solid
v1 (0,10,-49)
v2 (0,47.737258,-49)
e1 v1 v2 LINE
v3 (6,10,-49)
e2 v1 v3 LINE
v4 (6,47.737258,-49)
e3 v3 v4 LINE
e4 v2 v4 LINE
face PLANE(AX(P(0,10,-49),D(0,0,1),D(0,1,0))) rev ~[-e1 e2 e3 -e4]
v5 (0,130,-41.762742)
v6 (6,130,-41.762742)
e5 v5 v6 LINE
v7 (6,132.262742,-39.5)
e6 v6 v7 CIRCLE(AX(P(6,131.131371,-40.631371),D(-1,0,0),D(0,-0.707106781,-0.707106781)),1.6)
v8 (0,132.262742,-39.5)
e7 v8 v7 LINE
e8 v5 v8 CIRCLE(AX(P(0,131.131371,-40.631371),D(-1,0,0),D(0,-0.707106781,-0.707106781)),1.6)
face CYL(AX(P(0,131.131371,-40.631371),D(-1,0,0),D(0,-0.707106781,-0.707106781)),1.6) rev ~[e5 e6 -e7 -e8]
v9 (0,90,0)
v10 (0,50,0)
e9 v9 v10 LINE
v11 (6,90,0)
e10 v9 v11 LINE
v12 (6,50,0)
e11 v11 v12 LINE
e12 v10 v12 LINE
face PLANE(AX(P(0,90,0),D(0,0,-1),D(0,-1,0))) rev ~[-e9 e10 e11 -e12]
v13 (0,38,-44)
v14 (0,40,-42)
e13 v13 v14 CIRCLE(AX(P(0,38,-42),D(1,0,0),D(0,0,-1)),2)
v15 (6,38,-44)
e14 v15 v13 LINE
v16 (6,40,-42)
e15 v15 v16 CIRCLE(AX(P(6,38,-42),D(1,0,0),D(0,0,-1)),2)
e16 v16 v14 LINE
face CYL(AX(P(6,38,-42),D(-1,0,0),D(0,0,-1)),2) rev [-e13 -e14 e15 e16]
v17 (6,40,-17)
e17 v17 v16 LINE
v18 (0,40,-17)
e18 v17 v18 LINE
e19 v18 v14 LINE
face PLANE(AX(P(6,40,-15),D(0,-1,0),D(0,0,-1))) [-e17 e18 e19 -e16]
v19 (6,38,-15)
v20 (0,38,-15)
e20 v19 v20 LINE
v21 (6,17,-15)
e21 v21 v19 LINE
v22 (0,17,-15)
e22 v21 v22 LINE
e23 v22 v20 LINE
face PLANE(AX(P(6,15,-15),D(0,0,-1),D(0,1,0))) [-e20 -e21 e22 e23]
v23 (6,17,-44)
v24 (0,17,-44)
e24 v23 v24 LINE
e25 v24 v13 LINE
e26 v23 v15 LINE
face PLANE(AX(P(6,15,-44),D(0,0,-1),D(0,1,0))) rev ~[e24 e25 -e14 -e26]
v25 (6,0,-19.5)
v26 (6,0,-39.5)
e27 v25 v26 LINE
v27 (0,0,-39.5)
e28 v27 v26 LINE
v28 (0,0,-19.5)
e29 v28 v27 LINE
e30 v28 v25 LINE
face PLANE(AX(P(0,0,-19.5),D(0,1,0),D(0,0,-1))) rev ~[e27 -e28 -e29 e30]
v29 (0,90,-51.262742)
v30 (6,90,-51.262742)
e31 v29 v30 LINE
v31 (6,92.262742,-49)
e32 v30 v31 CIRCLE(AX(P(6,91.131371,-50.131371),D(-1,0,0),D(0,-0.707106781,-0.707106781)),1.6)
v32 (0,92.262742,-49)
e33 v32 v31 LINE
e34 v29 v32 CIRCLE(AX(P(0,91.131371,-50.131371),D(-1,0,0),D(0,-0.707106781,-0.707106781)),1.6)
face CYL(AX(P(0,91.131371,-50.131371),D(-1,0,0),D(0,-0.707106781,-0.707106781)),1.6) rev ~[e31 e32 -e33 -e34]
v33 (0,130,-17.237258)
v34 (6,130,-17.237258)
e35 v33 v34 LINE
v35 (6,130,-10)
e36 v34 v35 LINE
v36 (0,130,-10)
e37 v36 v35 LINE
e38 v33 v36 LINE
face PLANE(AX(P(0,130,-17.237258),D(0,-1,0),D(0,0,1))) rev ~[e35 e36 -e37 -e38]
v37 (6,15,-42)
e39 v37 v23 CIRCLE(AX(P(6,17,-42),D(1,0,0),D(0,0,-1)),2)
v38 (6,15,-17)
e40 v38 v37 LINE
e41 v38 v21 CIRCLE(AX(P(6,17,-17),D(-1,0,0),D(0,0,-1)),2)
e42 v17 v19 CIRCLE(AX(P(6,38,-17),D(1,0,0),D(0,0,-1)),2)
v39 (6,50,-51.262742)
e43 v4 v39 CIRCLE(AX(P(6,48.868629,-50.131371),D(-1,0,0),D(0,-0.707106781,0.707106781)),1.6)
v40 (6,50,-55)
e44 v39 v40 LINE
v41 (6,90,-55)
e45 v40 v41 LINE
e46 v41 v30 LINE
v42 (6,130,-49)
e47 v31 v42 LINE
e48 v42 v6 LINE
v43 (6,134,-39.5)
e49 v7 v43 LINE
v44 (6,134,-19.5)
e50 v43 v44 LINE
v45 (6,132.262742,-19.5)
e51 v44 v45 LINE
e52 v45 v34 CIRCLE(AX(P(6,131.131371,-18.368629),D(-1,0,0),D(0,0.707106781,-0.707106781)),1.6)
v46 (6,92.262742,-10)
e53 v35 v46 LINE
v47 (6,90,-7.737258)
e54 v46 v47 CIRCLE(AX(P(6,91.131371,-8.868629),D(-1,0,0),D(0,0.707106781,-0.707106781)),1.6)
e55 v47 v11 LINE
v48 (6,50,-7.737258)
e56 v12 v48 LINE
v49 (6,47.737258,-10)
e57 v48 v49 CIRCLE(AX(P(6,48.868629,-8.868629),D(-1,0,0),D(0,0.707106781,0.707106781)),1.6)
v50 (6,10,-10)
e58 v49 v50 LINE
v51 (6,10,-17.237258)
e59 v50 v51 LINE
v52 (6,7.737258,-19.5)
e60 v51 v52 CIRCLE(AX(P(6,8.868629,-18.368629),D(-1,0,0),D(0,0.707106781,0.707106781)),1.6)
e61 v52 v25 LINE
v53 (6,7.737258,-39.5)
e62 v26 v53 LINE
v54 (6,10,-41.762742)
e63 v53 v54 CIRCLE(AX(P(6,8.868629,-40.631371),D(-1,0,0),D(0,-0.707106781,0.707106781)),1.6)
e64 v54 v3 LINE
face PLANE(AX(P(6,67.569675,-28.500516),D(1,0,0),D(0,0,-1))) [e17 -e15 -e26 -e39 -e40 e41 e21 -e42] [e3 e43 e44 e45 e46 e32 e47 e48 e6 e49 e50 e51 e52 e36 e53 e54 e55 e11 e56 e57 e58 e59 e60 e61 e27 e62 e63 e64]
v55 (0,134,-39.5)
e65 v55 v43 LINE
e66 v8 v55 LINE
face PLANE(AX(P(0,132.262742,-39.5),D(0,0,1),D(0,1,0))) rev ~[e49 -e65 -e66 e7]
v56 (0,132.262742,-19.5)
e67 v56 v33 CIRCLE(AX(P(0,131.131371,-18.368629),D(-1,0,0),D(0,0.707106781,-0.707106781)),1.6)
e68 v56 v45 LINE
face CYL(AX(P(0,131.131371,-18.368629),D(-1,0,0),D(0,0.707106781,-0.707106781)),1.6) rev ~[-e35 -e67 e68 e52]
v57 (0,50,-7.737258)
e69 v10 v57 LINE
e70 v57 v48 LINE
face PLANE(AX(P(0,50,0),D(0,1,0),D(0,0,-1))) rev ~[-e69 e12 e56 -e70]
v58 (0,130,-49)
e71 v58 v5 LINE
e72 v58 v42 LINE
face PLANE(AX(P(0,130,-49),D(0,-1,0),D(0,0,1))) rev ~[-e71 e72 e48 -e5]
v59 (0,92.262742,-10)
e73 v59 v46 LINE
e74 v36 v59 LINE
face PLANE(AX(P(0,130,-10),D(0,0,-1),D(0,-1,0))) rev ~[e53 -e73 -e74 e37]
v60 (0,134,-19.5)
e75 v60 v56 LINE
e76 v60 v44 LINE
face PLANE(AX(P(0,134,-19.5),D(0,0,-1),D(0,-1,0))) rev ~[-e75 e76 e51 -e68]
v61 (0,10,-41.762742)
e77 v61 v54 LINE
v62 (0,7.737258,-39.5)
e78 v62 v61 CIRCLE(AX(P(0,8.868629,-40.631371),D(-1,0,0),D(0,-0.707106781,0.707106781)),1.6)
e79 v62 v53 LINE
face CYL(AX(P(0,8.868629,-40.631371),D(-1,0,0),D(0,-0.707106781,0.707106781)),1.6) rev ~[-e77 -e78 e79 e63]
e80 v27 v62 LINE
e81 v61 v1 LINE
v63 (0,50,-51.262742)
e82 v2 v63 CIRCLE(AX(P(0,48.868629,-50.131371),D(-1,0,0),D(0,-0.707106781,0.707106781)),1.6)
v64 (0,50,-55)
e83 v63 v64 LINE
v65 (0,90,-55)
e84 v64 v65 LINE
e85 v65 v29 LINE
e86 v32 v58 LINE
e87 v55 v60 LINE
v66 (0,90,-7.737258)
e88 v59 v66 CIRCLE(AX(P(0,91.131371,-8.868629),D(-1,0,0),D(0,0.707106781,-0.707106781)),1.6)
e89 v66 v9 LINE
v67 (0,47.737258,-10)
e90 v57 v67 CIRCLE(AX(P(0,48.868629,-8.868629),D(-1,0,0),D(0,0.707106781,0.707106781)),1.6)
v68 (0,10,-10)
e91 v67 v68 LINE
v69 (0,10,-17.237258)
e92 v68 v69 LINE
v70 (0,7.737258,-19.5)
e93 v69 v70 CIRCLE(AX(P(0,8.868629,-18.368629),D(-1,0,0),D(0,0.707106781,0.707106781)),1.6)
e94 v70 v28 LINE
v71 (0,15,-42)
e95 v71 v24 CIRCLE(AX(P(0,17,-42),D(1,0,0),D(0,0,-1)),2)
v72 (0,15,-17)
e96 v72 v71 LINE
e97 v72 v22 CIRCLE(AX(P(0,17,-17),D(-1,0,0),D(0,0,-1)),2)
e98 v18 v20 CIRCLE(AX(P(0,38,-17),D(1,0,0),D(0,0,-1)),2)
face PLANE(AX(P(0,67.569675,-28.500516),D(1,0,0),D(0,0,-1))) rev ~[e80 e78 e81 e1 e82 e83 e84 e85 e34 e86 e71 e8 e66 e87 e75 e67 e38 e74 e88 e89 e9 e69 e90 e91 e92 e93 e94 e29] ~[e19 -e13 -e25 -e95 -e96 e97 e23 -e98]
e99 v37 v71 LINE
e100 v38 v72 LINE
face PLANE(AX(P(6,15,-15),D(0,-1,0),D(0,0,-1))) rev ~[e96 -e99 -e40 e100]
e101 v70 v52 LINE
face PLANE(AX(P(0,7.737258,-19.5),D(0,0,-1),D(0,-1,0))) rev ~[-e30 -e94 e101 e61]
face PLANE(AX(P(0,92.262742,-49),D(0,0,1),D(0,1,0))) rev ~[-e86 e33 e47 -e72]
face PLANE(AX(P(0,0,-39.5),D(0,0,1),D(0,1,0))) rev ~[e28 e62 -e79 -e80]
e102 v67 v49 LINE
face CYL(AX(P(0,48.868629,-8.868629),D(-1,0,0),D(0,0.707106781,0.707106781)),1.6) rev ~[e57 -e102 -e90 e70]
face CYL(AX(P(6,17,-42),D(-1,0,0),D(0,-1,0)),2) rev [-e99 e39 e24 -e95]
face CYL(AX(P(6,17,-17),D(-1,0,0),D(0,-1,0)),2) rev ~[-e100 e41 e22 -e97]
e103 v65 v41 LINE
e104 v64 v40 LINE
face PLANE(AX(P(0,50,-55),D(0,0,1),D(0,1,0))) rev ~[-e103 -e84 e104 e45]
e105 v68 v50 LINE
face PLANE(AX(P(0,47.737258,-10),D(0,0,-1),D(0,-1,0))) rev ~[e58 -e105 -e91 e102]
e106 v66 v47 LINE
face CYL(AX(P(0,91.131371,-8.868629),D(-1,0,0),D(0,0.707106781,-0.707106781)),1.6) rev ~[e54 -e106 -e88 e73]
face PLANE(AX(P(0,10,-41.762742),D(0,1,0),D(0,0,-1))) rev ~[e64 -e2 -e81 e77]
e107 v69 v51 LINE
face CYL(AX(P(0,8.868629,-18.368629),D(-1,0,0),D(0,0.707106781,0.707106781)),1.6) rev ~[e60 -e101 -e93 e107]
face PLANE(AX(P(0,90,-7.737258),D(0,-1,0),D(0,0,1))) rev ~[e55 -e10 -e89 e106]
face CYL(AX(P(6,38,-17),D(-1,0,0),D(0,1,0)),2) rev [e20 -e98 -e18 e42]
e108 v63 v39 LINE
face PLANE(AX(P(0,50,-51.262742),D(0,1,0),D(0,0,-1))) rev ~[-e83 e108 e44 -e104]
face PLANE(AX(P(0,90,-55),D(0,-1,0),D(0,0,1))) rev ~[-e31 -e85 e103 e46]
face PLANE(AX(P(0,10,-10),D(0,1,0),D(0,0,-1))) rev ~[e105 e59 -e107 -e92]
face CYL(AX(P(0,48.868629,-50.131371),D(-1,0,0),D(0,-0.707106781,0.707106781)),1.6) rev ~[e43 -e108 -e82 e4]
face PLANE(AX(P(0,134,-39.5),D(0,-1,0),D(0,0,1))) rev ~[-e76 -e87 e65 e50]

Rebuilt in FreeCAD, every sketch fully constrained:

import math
import FreeCAD as App
import Part
import Sketcher

V = App.Vector


def edges_at(feature, points):
    """Names of the edges that pass closest to the given points."""
    edges = feature.Shape.Edges
    near = lambda p: min(range(len(edges)), key=lambda i: edges[i].distToShape(Part.Vertex(*p))[0])
    return sorted({f"Edge{near(p) + 1}" for p in points})

doc = App.newDocument("Part")
body = doc.addObject("PartDesign::Body", "Body")

sketch1 = body.newObject("Sketcher::SketchObject", "Sketch")
sketch1.AttachmentSupport = (doc.getObject("YZ_Plane"), [""])
sketch1.MapMode = "FlatFace"
sketch1.addGeometry(Part.LineSegment(V(7.7, -19.5, 0), V(0, -19.5, 0)), False)
sketch1.addGeometry(Part.LineSegment(V(0, -19.5, 0), V(0, -39.5, 0)), False)
sketch1.addGeometry(Part.LineSegment(V(0, -39.5, 0), V(7.7, -39.5, 0)), False)
sketch1.addGeometry(Part.ArcOfCircle(Part.Circle(V(8.9, -40.6, 0), V(0, 0, 1), 1.6), math.radians(-45), math.radians(135)), False)
sketch1.addGeometry(Part.LineSegment(V(10, -41.8, 0), V(10, -49, 0)), False)
sketch1.addGeometry(Part.LineSegment(V(10, -49, 0), V(47.7, -49, 0)), False)
sketch1.addGeometry(Part.ArcOfCircle(Part.Circle(V(48.9, -50.1, 0), V(0, 0, 1), 1.6), math.radians(-45), math.radians(135)), False)
sketch1.addGeometry(Part.LineSegment(V(50, -51.3, 0), V(50, -55, 0)), False)
sketch1.addGeometry(Part.LineSegment(V(50, -55, 0), V(90, -55, 0)), False)
sketch1.addGeometry(Part.LineSegment(V(90, -55, 0), V(90, -51.3, 0)), False)
sketch1.addGeometry(Part.ArcOfCircle(Part.Circle(V(91.1, -50.1, 0), V(0, 0, 1), 1.6), math.radians(45), math.radians(225)), False)
sketch1.addGeometry(Part.LineSegment(V(92.3, -49, 0), V(130, -49, 0)), False)
sketch1.addGeometry(Part.LineSegment(V(130, -49, 0), V(130, -41.8, 0)), False)
sketch1.addGeometry(Part.ArcOfCircle(Part.Circle(V(131.1, -40.6, 0), V(0, 0, 1), 1.6), math.radians(45), math.radians(225)), False)
sketch1.addGeometry(Part.LineSegment(V(132.3, -39.5, 0), V(134, -39.5, 0)), False)
sketch1.addGeometry(Part.LineSegment(V(134, -39.5, 0), V(134, -19.5, 0)), False)
sketch1.addGeometry(Part.LineSegment(V(134, -19.5, 0), V(132.3, -19.5, 0)), False)
sketch1.addGeometry(Part.ArcOfCircle(Part.Circle(V(131.1, -18.4, 0), V(0, 0, 1), 1.6), math.radians(135), math.radians(315)), False)
sketch1.addGeometry(Part.LineSegment(V(130, -17.2, 0), V(130, -10, 0)), False)
sketch1.addGeometry(Part.LineSegment(V(130, -10, 0), V(92.3, -10, 0)), False)
sketch1.addGeometry(Part.ArcOfCircle(Part.Circle(V(91.1, -8.9, 0), V(0, 0, 1), 1.6), math.radians(135), math.radians(315)), False)
sketch1.addGeometry(Part.LineSegment(V(90, -7.7, 0), V(90, 0, 0)), False)
sketch1.addGeometry(Part.LineSegment(V(90, 0, 0), V(50, 0, 0)), False)
sketch1.addGeometry(Part.LineSegment(V(50, 0, 0), V(50, -7.7, 0)), False)
sketch1.addGeometry(Part.ArcOfCircle(Part.Circle(V(48.9, -8.9, 0), V(0, 0, 1), 1.6), math.radians(-135), math.radians(45)), False)
sketch1.addGeometry(Part.LineSegment(V(47.7, -10, 0), V(10, -10, 0)), False)
sketch1.addGeometry(Part.LineSegment(V(10, -10, 0), V(10, -17.2, 0)), False)
sketch1.addGeometry(Part.ArcOfCircle(Part.Circle(V(8.9, -18.4, 0), V(0, 0, 1), 1.6), math.radians(-135), math.radians(45)), False)
sketch1.addConstraint(Sketcher.Constraint("Coincident", 0, 2, 1, 1))
sketch1.addConstraint(Sketcher.Constraint("Coincident", 1, 2, 2, 1))
sketch1.addConstraint(Sketcher.Constraint("Coincident", 2, 2, 3, 2))
sketch1.addConstraint(Sketcher.Constraint("Coincident", 3, 1, 4, 1))
sketch1.addConstraint(Sketcher.Constraint("Coincident", 4, 2, 5, 1))
sketch1.addConstraint(Sketcher.Constraint("Coincident", 5, 2, 6, 2))
sketch1.addConstraint(Sketcher.Constraint("Coincident", 6, 1, 7, 1))
sketch1.addConstraint(Sketcher.Constraint("Coincident", 7, 2, 8, 1))
sketch1.addConstraint(Sketcher.Constraint("Coincident", 8, 2, 9, 1))
sketch1.addConstraint(Sketcher.Constraint("Coincident", 9, 2, 10, 2))
sketch1.addConstraint(Sketcher.Constraint("Coincident", 10, 1, 11, 1))
sketch1.addConstraint(Sketcher.Constraint("Coincident", 11, 2, 12, 1))
sketch1.addConstraint(Sketcher.Constraint("Coincident", 12, 2, 13, 2))
sketch1.addConstraint(Sketcher.Constraint("Coincident", 13, 1, 14, 1))
sketch1.addConstraint(Sketcher.Constraint("Coincident", 14, 2, 15, 1))
sketch1.addConstraint(Sketcher.Constraint("Coincident", 15, 2, 16, 1))
sketch1.addConstraint(Sketcher.Constraint("Coincident", 16, 2, 17, 2))
sketch1.addConstraint(Sketcher.Constraint("Coincident", 17, 1, 18, 1))
sketch1.addConstraint(Sketcher.Constraint("Coincident", 18, 2, 19, 1))
sketch1.addConstraint(Sketcher.Constraint("Coincident", 19, 2, 20, 2))
sketch1.addConstraint(Sketcher.Constraint("Coincident", 20, 1, 21, 1))
sketch1.addConstraint(Sketcher.Constraint("Coincident", 21, 2, 22, 1))
sketch1.addConstraint(Sketcher.Constraint("Coincident", 22, 2, 23, 1))
sketch1.addConstraint(Sketcher.Constraint("Coincident", 23, 2, 24, 2))
sketch1.addConstraint(Sketcher.Constraint("Coincident", 24, 1, 25, 1))
sketch1.addConstraint(Sketcher.Constraint("Coincident", 25, 2, 26, 1))
sketch1.addConstraint(Sketcher.Constraint("Coincident", 26, 2, 27, 2))
sketch1.addConstraint(Sketcher.Constraint("Coincident", 27, 1, 0, 1))
sketch1.addConstraint(Sketcher.Constraint("Horizontal", 0))
sketch1.addConstraint(Sketcher.Constraint("Vertical", 1))
sketch1.addConstraint(Sketcher.Constraint("Horizontal", 2))
sketch1.addConstraint(Sketcher.Constraint("Vertical", 4))
sketch1.addConstraint(Sketcher.Constraint("Horizontal", 5))
sketch1.addConstraint(Sketcher.Constraint("Vertical", 7))
sketch1.addConstraint(Sketcher.Constraint("Horizontal", 8))
sketch1.addConstraint(Sketcher.Constraint("Vertical", 9))
sketch1.addConstraint(Sketcher.Constraint("Horizontal", 11))
sketch1.addConstraint(Sketcher.Constraint("Vertical", 12))
sketch1.addConstraint(Sketcher.Constraint("Horizontal", 14))
sketch1.addConstraint(Sketcher.Constraint("Vertical", 15))
sketch1.addConstraint(Sketcher.Constraint("Horizontal", 16))
sketch1.addConstraint(Sketcher.Constraint("Vertical", 18))
sketch1.addConstraint(Sketcher.Constraint("Horizontal", 19))
sketch1.addConstraint(Sketcher.Constraint("Vertical", 21))
sketch1.addConstraint(Sketcher.Constraint("Horizontal", 22))
sketch1.addConstraint(Sketcher.Constraint("Vertical", 23))
sketch1.addConstraint(Sketcher.Constraint("Horizontal", 25))
sketch1.addConstraint(Sketcher.Constraint("Vertical", 26))
sketch1.addConstraint(Sketcher.Constraint("Equal", 3, 6))
sketch1.addConstraint(Sketcher.Constraint("Equal", 6, 10))
sketch1.addConstraint(Sketcher.Constraint("Equal", 10, 13))
sketch1.addConstraint(Sketcher.Constraint("Equal", 13, 17))
sketch1.addConstraint(Sketcher.Constraint("Equal", 17, 20))
sketch1.addConstraint(Sketcher.Constraint("Equal", 20, 24))
sketch1.addConstraint(Sketcher.Constraint("Equal", 24, 27))
sketch1.addConstraint(Sketcher.Constraint("PointOnObject", 0, 2, -2))
sketch1.addConstraint(Sketcher.Constraint("PointOnObject", 21, 2, -1))
sketch1.addConstraint(Sketcher.Constraint("Horizontal", 6, 3, 10, 3))
sketch1.addConstraint(Sketcher.Constraint("Horizontal", 3, 3, 13, 3))
sketch1.addConstraint(Sketcher.Constraint("Horizontal", 20, 3, 24, 3))
sketch1.addConstraint(Sketcher.Constraint("Horizontal", 17, 3, 27, 3))
sketch1.addConstraint(Sketcher.Constraint("Horizontal", 6, 1, 9, 2))
sketch1.addConstraint(Sketcher.Constraint("Horizontal", 5, 2, 10, 1))
sketch1.addConstraint(Sketcher.Constraint("Horizontal", 3, 1, 12, 2))
sketch1.addConstraint(Sketcher.Constraint("Horizontal", 2, 2, 13, 1))
sketch1.addConstraint(Sketcher.Constraint("Horizontal", 0, 2, 15, 2))
sketch1.addConstraint(Sketcher.Constraint("Horizontal", 20, 1, 23, 2))
sketch1.addConstraint(Sketcher.Constraint("Horizontal", 19, 2, 24, 1))
sketch1.addConstraint(Sketcher.Constraint("Horizontal", 17, 1, 26, 2))
sketch1.addConstraint(Sketcher.Constraint("Vertical", 13, 3, 17, 3))
sketch1.addConstraint(Sketcher.Constraint("Vertical", 10, 3, 20, 3))
sketch1.addConstraint(Sketcher.Constraint("Vertical", 6, 3, 24, 3))
sketch1.addConstraint(Sketcher.Constraint("Vertical", 3, 3, 27, 3))
sketch1.addConstraint(Sketcher.Constraint("Vertical", 13, 1, 16, 2))
sketch1.addConstraint(Sketcher.Constraint("Vertical", 12, 2, 17, 1))
sketch1.addConstraint(Sketcher.Constraint("Vertical", 10, 1, 19, 2))
sketch1.addConstraint(Sketcher.Constraint("Vertical", 9, 2, 20, 1))
sketch1.addConstraint(Sketcher.Constraint("Equal", 5, 11))
sketch1.addConstraint(Sketcher.Constraint("Equal", 12, 18))
sketch1.addConstraint(Sketcher.Constraint("Equal", 2, 21))
sketch1.addConstraint(Sketcher.Constraint("Radius", 3, 1.6))
sketch1.addConstraint(Sketcher.Constraint("DistanceX", 8, 1, 8, 2, 40.0))
sketch1.addConstraint(Sketcher.Constraint("DistanceY", 1, 2, 1, 1, 20.0))
sketch1.addConstraint(Sketcher.Constraint("DistanceX", -1, 1, 3, 1, 10.0))
sketch1.addConstraint(Sketcher.Constraint("DistanceY", 4, 2, -1, 1, 49.0))
sketch1.addConstraint(Sketcher.Constraint("DistanceX", -1, 1, 6, 1, 50.0))
sketch1.addConstraint(Sketcher.Constraint("DistanceY", 7, 2, -1, 1, 55.0))
sketch1.addConstraint(Sketcher.Constraint("DistanceX", -1, 1, 14, 2, 134.0))
sketch1.addConstraint(Sketcher.Constraint("DistanceY", 18, 2, -1, 1, 10.0))
sketch1.addConstraint(Sketcher.Constraint("DistanceX", 3, 3, 6, 3, 40.0))
sketch1.addConstraint(Sketcher.Constraint("DistanceX", 10, 1, 13, 1, 40.0))
sketch1.addConstraint(Sketcher.Constraint("DistanceX", -1, 1, 3, 3, 8.868629))
pad1 = body.newObject("PartDesign::Pad", "Pad")
pad1.Profile = sketch1
pad1.Length = 6

sketch2 = body.newObject("Sketcher::SketchObject", "Sketch001")
sketch2.AttachmentSupport = (doc.getObject("YZ_Plane"), [""])
sketch2.MapMode = "FlatFace"
sketch2.AttachmentOffset = App.Placement(V(0, 0, 6), App.Rotation())
sketch2.addGeometry(Part.LineSegment(V(40, -15, 0), V(15, -15, 0)), False)
sketch2.addGeometry(Part.LineSegment(V(15, -15, 0), V(15, -44, 0)), False)
sketch2.addGeometry(Part.LineSegment(V(15, -44, 0), V(40, -44, 0)), False)
sketch2.addGeometry(Part.LineSegment(V(40, -44, 0), V(40, -15, 0)), False)
sketch2.addConstraint(Sketcher.Constraint("Coincident", 0, 2, 1, 1))
sketch2.addConstraint(Sketcher.Constraint("Coincident", 1, 2, 2, 1))
sketch2.addConstraint(Sketcher.Constraint("Coincident", 2, 2, 3, 1))
sketch2.addConstraint(Sketcher.Constraint("Coincident", 3, 2, 0, 1))
sketch2.addConstraint(Sketcher.Constraint("Horizontal", 0))
sketch2.addConstraint(Sketcher.Constraint("Vertical", 1))
sketch2.addConstraint(Sketcher.Constraint("Horizontal", 2))
sketch2.addConstraint(Sketcher.Constraint("Vertical", 3))
sketch2.addConstraint(Sketcher.Constraint("DistanceX", 0, 2, 0, 1, 25.0))
sketch2.addConstraint(Sketcher.Constraint("DistanceY", 1, 2, 1, 1, 29.0))
sketch2.addConstraint(Sketcher.Constraint("DistanceX", -1, 1, 0, 2, 15.0))
sketch2.addConstraint(Sketcher.Constraint("DistanceY", 0, 2, -1, 1, 15.0))
pocket1 = body.newObject("PartDesign::Pocket", "Pocket")
pocket1.Profile = sketch2
pocket1.Type = "ThroughAll"
doc.recompute()

fillet = body.newObject("PartDesign::Fillet", "Fillet")
fillet.Base = (pocket1, edges_at(pocket1, [
    (3, 15, -15),
    (3, 40, -15),
    (3, 40, -44),
    (3, 15, -44),
]))
fillet.Radius = 2

doc.recompute()
